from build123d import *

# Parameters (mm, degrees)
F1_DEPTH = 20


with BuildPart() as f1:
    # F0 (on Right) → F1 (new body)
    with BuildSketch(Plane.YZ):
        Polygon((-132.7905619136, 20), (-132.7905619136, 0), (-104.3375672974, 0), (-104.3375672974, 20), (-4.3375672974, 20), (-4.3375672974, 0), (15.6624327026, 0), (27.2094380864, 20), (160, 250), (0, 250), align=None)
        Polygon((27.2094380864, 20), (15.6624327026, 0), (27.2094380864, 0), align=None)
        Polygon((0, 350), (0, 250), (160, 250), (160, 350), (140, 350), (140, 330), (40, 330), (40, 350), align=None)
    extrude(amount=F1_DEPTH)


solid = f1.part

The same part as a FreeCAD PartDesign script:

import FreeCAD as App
import Part
import Sketcher

V = App.Vector
Q = App.Units.Quantity


def add_polygon(sketch, points):
    """Adds a closed chain of lines whose ends are joined by coincident constraints."""
    first, n = sketch.GeometryCount, len(points)
    for a, b in zip(points, points[1:] + points[:1]):
        sketch.addGeometry(Part.LineSegment(App.Vector(*a, 0), App.Vector(*b, 0)), False)
    for i in range(n):
        sketch.addConstraint(Sketcher.Constraint("Coincident", first + i, 2, first + (i + 1) % n, 1))

doc = App.newDocument("Part")
params = doc.addObject("Spreadsheet::Sheet", "Params")
for row, (alias, value) in enumerate([
    ("sketch1_width", "100 mm"),
    ("sketch1_width2", "20 mm"),
    ("sketch1_width3", "40 mm"),
    ("pad1_length", "20 mm"),
], start=1):
    params.set(f"A{row}", alias)
    params.set(f"B{row}", "=" + value)
    params.setAlias(f"B{row}", alias)

body = doc.addObject("PartDesign::Body", "Body")

# Sketch on YZ plane
sketch1 = body.newObject("Sketcher::SketchObject", "Sketch")
sketch1.AttachmentSupport = (doc.getObject("YZ_Plane"), [""])
sketch1.MapMode = "FlatFace"
add_polygon(sketch1, [(-133, 20), (-133, 0), (-104, 0), (-104, 20), (-4, 20), (-4, 0), (27, 0), (27, 20), (160, 250), (160, 350), (140, 350), (140, 330), (40, 330), (40, 350), (0, 350), (0, 250)])  # lines 0-15
sketch1.addConstraint([
    Sketcher.Constraint("Vertical", 0),
    Sketcher.Constraint("Horizontal", 1),
    Sketcher.Constraint("Vertical", 2),
    Sketcher.Constraint("Horizontal", 3),
    Sketcher.Constraint("Vertical", 4),
    Sketcher.Constraint("Horizontal", 5),
    Sketcher.Constraint("Vertical", 6),
    Sketcher.Constraint("Vertical", 8),
    Sketcher.Constraint("Horizontal", 9),
    Sketcher.Constraint("Vertical", 10),
    Sketcher.Constraint("Horizontal", 11),
    Sketcher.Constraint("Vertical", 12),
    Sketcher.Constraint("Horizontal", 13),
    Sketcher.Constraint("Vertical", 14),
    Sketcher.Constraint("PointOnObject", 0, 2, -1),
    Sketcher.Constraint("PointOnObject", 4, 2, -1),
    Sketcher.Constraint("PointOnObject", 13, 2, -2),
    Sketcher.Constraint("Parallel", 7, 15),
    Sketcher.Constraint("Horizontal", 3, 2, 6, 2),
    Sketcher.Constraint("Horizontal", 9, 2, 12, 2),
    Sketcher.Constraint("Horizontal", 7, 2, 14, 2),
    Sketcher.Constraint("Horizontal", 6, 2, 15, 2),
    Sketcher.Constraint("Equal", 3, 11),
    Sketcher.Constraint("Equal", 9, 0),
    Sketcher.Constraint("Equal", 11, 8),
    Sketcher.Constraint("Equal", 6, 10),
    Sketcher.Constraint("DistanceX", 3, 1, 3, 2, Q("100 mm")),
    Sketcher.Constraint("DistanceX", 9, 2, 9, 1, Q("20 mm")),
    Sketcher.Constraint("DistanceX", 13, 2, 13, 1, Q("40 mm")),
    Sketcher.Constraint("Angle", 7, Q("60 deg")),
    Sketcher.Constraint("DistanceY", -1, 1, 7, 2, Q("250 mm")),
    Sketcher.Constraint("DistanceX", 1, 1, 1, 2, Q("28.452995 mm")),
])
sketch1.setExpression("Constraints[42]", "Params.sketch1_width")
sketch1.setExpression("Constraints[43]", "Params.sketch1_width2")
sketch1.setExpression("Constraints[44]", "Params.sketch1_width3")
pad1 = body.newObject("PartDesign::Pad", "Pad")
pad1.Profile = sketch1
pad1.setExpression("Length", "Params.pad1_length")

doc.recompute()
